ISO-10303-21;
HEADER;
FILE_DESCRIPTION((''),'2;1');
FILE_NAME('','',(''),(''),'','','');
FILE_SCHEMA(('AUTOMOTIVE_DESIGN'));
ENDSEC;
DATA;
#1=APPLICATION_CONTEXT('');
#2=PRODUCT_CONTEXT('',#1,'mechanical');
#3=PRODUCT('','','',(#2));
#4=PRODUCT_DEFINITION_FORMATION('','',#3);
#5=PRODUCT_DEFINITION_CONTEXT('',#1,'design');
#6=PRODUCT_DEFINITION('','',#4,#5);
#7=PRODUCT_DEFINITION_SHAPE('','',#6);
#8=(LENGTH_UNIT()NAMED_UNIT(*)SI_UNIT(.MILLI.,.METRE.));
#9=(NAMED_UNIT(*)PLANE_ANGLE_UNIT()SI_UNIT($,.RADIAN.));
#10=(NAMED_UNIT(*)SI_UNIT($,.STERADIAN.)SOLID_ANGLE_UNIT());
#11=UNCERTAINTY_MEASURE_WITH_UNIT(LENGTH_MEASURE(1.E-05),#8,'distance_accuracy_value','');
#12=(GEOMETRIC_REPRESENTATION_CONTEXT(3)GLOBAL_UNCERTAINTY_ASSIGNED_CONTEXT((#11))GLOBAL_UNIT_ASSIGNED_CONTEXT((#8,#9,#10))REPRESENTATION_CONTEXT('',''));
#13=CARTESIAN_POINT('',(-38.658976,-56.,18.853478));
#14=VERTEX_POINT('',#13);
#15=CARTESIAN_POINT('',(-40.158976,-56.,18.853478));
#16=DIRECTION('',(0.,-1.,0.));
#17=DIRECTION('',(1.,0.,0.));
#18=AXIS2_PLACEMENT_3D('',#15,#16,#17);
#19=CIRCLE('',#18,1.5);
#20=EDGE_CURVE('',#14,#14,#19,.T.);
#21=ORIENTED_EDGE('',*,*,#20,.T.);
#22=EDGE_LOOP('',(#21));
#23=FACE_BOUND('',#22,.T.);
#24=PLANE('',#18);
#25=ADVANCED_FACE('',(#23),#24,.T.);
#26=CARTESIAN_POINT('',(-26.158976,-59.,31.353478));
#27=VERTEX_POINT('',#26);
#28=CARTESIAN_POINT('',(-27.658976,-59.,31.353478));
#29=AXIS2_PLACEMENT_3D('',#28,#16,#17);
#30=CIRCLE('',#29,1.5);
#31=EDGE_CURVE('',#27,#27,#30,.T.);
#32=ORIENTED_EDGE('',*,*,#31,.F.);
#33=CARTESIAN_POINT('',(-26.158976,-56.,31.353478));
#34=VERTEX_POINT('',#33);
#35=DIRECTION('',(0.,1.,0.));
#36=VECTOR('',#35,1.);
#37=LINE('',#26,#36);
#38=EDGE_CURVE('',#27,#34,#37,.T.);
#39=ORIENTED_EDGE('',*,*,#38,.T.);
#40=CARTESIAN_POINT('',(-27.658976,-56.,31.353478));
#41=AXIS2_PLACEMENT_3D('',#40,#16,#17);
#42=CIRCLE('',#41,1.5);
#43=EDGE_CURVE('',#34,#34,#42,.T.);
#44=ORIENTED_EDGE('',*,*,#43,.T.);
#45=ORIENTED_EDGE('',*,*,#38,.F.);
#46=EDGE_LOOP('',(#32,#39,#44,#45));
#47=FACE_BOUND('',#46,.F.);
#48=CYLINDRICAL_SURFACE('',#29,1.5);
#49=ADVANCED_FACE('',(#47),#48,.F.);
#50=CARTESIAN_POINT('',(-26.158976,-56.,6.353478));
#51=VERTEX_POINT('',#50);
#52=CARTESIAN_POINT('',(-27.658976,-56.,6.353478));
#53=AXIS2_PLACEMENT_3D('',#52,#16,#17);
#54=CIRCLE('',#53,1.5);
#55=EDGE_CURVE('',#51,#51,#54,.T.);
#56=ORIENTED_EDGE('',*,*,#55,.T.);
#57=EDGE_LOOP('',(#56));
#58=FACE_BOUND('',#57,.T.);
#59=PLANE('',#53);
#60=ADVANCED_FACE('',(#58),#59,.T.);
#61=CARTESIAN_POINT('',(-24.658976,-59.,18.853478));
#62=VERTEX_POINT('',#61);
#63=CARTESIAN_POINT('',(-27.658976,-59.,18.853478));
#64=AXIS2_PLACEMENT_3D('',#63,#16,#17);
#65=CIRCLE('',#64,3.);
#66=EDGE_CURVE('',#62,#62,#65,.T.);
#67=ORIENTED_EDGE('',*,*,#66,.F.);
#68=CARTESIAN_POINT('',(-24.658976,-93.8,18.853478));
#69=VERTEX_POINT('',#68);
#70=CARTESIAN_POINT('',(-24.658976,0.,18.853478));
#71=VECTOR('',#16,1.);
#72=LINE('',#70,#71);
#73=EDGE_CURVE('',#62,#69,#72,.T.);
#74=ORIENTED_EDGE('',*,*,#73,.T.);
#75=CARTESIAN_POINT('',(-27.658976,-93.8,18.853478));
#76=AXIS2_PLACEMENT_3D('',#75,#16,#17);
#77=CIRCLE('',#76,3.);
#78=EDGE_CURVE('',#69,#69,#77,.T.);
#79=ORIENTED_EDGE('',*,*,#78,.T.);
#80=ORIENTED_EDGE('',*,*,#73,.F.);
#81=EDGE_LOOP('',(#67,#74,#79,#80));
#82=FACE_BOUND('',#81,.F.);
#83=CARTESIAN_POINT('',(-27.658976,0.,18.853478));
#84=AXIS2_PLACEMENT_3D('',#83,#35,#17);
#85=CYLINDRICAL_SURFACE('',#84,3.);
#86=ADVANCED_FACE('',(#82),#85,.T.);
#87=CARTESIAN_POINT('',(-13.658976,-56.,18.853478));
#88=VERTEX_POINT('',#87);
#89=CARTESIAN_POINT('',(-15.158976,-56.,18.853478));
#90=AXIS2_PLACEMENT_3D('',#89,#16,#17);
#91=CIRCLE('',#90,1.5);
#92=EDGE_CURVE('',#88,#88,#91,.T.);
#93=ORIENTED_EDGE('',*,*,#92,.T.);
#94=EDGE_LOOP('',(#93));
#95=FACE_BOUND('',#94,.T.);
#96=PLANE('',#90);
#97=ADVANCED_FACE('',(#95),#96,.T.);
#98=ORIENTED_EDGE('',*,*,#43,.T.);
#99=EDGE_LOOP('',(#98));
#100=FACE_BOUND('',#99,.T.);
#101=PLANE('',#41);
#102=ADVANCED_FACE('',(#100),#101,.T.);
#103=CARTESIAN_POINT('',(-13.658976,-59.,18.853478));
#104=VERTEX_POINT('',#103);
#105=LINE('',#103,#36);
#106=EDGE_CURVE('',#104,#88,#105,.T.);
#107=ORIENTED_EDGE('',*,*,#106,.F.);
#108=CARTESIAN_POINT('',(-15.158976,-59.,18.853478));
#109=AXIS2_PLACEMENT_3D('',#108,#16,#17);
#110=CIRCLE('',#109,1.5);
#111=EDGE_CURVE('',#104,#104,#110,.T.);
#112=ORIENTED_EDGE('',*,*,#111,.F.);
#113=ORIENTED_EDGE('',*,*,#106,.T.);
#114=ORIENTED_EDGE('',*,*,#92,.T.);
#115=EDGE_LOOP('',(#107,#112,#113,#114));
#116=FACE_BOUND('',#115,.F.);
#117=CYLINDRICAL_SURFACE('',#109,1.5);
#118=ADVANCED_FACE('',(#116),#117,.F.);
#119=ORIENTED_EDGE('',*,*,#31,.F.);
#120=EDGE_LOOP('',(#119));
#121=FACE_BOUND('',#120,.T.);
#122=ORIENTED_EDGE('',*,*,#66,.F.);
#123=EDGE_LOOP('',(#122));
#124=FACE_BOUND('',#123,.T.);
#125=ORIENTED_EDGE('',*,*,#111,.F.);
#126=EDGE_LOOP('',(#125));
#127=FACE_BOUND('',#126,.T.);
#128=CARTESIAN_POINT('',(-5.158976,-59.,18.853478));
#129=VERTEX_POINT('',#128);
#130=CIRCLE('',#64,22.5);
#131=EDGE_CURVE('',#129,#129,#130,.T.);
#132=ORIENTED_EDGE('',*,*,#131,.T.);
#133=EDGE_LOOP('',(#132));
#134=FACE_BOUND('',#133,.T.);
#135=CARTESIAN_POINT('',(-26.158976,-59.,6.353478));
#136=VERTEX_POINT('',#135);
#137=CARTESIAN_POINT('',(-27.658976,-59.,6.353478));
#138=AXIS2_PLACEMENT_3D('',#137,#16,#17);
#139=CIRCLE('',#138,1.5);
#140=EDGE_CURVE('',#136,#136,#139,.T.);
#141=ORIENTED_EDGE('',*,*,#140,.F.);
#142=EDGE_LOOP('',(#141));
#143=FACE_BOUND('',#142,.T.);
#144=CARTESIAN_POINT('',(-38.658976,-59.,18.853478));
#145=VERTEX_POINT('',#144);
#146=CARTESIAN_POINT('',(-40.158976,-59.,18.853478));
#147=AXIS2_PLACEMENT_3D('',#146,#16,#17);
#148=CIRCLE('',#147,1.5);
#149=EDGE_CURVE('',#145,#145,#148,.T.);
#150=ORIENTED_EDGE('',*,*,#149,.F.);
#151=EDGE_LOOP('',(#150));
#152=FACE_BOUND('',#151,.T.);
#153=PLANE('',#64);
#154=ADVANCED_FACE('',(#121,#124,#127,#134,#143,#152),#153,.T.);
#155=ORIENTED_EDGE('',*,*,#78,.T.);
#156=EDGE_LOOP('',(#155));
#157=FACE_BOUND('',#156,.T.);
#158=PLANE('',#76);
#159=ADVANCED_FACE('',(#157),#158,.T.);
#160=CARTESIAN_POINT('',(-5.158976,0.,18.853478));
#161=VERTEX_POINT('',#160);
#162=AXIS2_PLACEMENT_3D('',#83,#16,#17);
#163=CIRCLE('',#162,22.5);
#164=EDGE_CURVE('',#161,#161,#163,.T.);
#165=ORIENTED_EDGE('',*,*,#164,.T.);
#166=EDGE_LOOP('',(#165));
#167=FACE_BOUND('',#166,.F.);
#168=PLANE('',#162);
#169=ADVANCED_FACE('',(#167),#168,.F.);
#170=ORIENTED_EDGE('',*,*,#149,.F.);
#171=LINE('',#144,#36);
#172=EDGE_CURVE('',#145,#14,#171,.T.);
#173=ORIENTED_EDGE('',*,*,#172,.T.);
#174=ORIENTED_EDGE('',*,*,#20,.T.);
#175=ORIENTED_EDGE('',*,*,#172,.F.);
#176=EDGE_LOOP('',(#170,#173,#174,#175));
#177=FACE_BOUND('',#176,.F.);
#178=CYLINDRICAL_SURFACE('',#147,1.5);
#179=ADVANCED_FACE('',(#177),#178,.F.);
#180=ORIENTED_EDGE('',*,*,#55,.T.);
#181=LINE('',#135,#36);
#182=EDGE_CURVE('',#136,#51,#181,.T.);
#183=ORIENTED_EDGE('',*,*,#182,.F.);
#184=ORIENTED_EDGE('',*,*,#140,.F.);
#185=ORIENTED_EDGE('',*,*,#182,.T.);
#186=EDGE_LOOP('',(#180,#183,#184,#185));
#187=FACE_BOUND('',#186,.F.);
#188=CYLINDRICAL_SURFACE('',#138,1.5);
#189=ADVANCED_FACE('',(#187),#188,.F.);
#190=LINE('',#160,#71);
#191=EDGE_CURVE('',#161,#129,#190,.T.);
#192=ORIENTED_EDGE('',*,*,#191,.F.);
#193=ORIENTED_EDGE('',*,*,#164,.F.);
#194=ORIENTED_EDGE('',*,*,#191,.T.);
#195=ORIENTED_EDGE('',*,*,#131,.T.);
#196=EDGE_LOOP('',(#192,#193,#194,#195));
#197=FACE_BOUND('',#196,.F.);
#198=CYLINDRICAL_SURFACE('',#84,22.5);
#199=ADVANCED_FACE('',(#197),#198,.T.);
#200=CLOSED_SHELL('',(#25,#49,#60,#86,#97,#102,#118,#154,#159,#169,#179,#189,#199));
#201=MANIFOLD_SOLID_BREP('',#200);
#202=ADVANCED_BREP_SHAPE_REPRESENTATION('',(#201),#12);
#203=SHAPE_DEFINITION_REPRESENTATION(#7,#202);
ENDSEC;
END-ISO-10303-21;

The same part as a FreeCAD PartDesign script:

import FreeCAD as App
import Part
import Sketcher
from FreeCAD import Vector

doc = App.newDocument("Part")
body = doc.addObject("PartDesign::Body", "Body")

# Sketch on XZ plane
sketch1 = body.newObject("Sketcher::SketchObject", "Sketch")
sketch1.AttachmentSupport = (doc.getObject("XZ_Plane"), [""])
sketch1.MapMode = "FlatFace"
sketch1.addGeometry(Part.Circle(Vector(-27.7, 18.9, 0), Vector(0, 0, 1), 22.5), False)
sketch1.addGeometry(Part.Circle(Vector(-27.7, 18.9, 0), Vector(0, 0, 1), 3), False)
sketch1.addConstraint(Sketcher.Constraint("Coincident", 1, 3, 0, 3))
sketch1.addConstraint(Sketcher.Constraint("Diameter", 0, 45.0))
sketch1.addConstraint(Sketcher.Constraint("Diameter", 1, 6.0))
sketch1.addConstraint(Sketcher.Constraint("DistanceX", 0, 3, -1, 1, 27.658976))
sketch1.addConstraint(Sketcher.Constraint("DistanceY", -1, 1, 0, 3, 18.853478))
pad1 = body.newObject("PartDesign::Pad", "Pad")
pad1.Profile = sketch1
pad1.Length = 59

# Sketch on XZ plane
sketch2 = body.newObject("Sketcher::SketchObject", "Sketch001")
sketch2.AttachmentSupport = (doc.getObject("XZ_Plane"), [""])
sketch2.MapMode = "FlatFace"
sketch2.addGeometry(Part.Circle(Vector(-27.7, 18.9, 0), Vector(0, 0, 1), 3), False)
sketch2.addConstraint(Sketcher.Constraint("Diameter", 0, 6.0))
sketch2.addConstraint(Sketcher.Constraint("DistanceX", 0, 3, -1, 1, 27.658976))
sketch2.addConstraint(Sketcher.Constraint("DistanceY", -1, 1, 0, 3, 18.853478))
pad2 = body.newObject("PartDesign::Pad", "Pad001")
pad2.Profile = sketch2
pad2.Length = 93.8

# Sketch on XZ plane
sketch3 = body.newObject("Sketcher::SketchObject", "Sketch002")
sketch3.AttachmentSupport = (doc.getObject("XZ_Plane"), [""])
sketch3.MapMode = "FlatFace"
sketch3.AttachmentOffset = App.Placement(Vector(0, 0, 59), App.Rotation())
sketch3.addGeometry(Part.Circle(Vector(-27.7, 31.4, 0), Vector(0, 0, 1), 1.5), False)
sketch3.addGeometry(Part.Circle(Vector(-40.2, 18.9, 0), Vector(0, 0, 1), 1.5), False)
sketch3.addGeometry(Part.Circle(Vector(-27.7, 6.4, 0), Vector(0, 0, 1), 1.5), False)
sketch3.addGeometry(Part.Circle(Vector(-15.2, 18.9, 0), Vector(0, 0, 1), 1.5), False)
sketch3.addConstraint(Sketcher.Constraint("Equal", 0, 1))
sketch3.addConstraint(Sketcher.Constraint("Equal", 1, 2))
sketch3.addConstraint(Sketcher.Constraint("Equal", 2, 3))
sketch3.addConstraint(Sketcher.Constraint("Horizontal", 1, 3, 3, 3))
sketch3.addConstraint(Sketcher.Constraint("Vertical", 0, 3, 2, 3))
sketch3.addConstraint(Sketcher.Constraint("Diameter", 0, 3.0))
sketch3.addConstraint(Sketcher.Constraint("DistanceY", 2, 3, 0, 3, 25.0))
sketch3.addConstraint(Sketcher.Constraint("DistanceX", 1, 3, 3, 3, 25.0))
sketch3.addConstraint(Sketcher.Constraint("DistanceX", 1, 3, 0, 3, 12.5))
sketch3.addConstraint(Sketcher.Constraint("DistanceY", 1, 3, 0, 3, 12.5))
sketch3.addConstraint(Sketcher.Constraint("DistanceX", 0, 3, -1, 1, 27.658976))
sketch3.addConstraint(Sketcher.Constraint("DistanceY", -1, 1, 0, 3, 31.353478))
pocket1 = body.newObject("PartDesign::Pocket", "Pocket")
pocket1.Profile = sketch3
pocket1.Length = 3

doc.recompute()
